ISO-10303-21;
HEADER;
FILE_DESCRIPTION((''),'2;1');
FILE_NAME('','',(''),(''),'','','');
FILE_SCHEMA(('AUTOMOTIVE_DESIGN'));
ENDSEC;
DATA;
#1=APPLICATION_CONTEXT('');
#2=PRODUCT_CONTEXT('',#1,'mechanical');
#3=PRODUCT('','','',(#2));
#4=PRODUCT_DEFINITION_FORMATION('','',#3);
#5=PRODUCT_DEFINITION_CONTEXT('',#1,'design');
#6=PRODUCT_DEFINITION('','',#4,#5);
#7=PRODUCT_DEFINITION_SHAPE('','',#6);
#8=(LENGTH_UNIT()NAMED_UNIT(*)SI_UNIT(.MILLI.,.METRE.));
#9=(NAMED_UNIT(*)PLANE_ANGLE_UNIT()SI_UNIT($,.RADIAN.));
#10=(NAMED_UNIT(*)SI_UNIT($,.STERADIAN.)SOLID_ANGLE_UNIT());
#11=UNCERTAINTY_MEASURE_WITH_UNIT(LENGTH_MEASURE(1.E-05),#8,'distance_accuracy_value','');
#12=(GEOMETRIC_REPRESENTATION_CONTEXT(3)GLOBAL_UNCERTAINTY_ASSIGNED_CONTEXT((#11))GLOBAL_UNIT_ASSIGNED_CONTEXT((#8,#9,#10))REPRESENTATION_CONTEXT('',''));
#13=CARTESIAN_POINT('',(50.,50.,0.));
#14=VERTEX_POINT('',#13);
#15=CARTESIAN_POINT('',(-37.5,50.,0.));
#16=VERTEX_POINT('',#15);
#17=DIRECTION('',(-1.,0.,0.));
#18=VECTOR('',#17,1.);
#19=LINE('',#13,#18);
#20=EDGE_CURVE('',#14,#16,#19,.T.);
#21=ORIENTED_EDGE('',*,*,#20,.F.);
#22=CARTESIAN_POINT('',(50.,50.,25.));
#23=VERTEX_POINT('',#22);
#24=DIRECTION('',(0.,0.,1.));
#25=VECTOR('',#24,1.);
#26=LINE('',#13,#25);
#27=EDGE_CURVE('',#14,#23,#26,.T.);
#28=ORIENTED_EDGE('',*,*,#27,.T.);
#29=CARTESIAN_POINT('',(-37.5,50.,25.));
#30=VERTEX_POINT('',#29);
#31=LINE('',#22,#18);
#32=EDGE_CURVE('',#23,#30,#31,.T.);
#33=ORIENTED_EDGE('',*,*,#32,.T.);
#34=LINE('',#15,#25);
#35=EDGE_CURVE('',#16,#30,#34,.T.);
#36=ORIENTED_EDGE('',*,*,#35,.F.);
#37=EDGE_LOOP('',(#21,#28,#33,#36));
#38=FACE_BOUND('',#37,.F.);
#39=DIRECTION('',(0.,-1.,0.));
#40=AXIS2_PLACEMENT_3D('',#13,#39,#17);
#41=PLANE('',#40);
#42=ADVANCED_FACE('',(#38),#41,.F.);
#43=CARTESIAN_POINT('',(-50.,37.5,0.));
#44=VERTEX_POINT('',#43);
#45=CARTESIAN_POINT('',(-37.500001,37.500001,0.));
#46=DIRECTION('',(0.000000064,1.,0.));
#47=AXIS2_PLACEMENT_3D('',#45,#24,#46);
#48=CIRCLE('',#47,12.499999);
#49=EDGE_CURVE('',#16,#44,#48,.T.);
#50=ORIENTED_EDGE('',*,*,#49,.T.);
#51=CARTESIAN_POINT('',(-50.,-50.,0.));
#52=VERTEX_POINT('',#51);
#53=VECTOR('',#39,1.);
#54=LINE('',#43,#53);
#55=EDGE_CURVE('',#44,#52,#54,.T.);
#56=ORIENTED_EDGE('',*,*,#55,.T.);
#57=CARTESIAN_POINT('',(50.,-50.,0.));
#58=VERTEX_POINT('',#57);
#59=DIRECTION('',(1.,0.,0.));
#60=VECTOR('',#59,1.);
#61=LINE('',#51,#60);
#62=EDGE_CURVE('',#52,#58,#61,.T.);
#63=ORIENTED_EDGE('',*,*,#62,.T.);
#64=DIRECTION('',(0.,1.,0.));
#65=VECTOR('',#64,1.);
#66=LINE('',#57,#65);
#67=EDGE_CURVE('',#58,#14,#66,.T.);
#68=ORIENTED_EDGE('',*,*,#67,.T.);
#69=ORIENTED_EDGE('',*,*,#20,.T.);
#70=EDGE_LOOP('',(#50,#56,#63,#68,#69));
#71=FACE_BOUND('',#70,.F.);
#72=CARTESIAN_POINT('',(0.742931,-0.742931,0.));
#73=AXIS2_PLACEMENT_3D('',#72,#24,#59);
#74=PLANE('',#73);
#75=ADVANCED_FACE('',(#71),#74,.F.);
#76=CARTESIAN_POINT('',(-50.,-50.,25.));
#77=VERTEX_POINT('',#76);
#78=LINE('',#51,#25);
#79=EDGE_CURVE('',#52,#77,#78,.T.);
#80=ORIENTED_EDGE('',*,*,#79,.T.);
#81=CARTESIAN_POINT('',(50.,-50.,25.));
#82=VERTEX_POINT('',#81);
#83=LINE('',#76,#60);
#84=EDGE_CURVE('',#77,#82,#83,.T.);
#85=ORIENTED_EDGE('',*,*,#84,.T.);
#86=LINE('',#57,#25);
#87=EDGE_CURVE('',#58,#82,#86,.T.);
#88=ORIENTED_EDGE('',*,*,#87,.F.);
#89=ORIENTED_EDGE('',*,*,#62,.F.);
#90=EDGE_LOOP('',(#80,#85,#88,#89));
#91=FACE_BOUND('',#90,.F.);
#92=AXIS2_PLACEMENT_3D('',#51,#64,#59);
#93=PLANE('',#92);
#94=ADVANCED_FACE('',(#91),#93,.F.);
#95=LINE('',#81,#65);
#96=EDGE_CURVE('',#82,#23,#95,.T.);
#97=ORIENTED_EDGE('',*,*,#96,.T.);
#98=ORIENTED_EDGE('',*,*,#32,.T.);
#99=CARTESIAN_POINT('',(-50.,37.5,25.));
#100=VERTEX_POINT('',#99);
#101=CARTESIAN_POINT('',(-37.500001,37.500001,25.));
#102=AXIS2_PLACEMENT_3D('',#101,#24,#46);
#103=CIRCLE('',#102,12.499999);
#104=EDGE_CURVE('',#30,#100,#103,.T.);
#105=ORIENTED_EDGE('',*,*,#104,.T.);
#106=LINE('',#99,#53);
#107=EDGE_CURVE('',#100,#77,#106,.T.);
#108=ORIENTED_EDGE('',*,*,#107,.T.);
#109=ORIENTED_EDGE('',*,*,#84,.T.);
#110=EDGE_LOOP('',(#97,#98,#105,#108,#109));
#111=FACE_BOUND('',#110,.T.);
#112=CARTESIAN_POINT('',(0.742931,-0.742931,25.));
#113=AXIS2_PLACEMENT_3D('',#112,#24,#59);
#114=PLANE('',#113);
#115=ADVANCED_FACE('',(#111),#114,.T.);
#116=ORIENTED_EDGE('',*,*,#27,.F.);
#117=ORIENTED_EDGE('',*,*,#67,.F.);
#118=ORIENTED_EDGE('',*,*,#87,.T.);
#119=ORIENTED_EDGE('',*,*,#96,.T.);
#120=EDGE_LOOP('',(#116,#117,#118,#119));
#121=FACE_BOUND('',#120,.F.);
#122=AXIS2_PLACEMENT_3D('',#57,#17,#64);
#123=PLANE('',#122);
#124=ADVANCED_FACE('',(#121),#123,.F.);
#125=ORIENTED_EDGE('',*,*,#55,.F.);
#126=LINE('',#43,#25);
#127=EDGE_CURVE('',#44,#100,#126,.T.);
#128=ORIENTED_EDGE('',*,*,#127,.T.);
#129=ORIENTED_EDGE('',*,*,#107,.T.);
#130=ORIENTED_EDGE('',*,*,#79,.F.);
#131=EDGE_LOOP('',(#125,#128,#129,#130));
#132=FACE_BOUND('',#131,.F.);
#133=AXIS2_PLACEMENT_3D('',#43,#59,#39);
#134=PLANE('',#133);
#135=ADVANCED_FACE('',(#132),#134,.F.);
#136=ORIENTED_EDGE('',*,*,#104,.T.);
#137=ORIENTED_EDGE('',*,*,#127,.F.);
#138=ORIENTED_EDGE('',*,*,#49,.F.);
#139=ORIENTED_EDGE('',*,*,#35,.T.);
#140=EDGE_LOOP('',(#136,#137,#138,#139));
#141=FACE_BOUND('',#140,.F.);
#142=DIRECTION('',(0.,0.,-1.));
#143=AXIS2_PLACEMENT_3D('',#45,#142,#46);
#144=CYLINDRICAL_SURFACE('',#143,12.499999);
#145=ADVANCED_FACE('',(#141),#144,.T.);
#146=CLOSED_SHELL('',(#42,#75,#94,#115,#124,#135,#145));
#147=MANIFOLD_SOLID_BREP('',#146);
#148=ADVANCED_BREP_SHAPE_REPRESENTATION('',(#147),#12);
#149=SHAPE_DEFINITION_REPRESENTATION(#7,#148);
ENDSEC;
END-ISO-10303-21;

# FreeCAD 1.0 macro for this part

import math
import FreeCAD as App
import Part
import Sketcher
from FreeCAD import Vector

doc = App.newDocument("Part")
params = doc.addObject("Spreadsheet::Sheet", "Params")
for row, (alias, value) in enumerate([
    ("sketch1_radius", "12.499999 mm"),
    ("sketch1_width", "100 mm"),
    ("pad1_length", "25 mm"),
], start=1):
    params.set(f"A{row}", alias)
    params.set(f"B{row}", "=" + value)
    params.setAlias(f"B{row}", alias)

body = doc.addObject("PartDesign::Body", "Body")

# Sketch on XY plane
sketch1 = body.newObject("Sketcher::SketchObject", "Sketch")
sketch1.AttachmentSupport = (doc.getObject("XY_Plane"), [""])
sketch1.MapMode = "FlatFace"
sketch1.addGeometry([
    Part.LineSegment(Vector(50, 50, 0), Vector(-38, 50, 0)),  # 0
    Part.ArcOfCircle(Part.Circle(Vector(-38, 38, 0), Vector(0, 0, 1), 12), math.radians(90), math.radians(180)),  # 1
    Part.LineSegment(Vector(-50, 38, 0), Vector(-50, -50, 0)),  # 2
    Part.LineSegment(Vector(-50, -50, 0), Vector(50, -50, 0)),  # 3
    Part.LineSegment(Vector(50, -50, 0), Vector(50, 50, 0)),  # 4
], False)
sketch1.addConstraint([
    Sketcher.Constraint("Tangent", 0, 2, 1, 1),
    Sketcher.Constraint("Tangent", 1, 2, 2, 1),
    Sketcher.Constraint("Coincident", 2, 2, 3, 1),
    Sketcher.Constraint("Coincident", 3, 2, 4, 1),
    Sketcher.Constraint("Coincident", 4, 2, 0, 1),
    Sketcher.Constraint("Horizontal", 0),
    Sketcher.Constraint("Vertical", 2),
    Sketcher.Constraint("Horizontal", 3),
    Sketcher.Constraint("Vertical", 4),
    Sketcher.Constraint("Symmetric", 2, 2, 4, 2, -1, 1),
    Sketcher.Constraint("Equal", 0, 2),
    Sketcher.Constraint("Radius", 1, 12.499999),
    Sketcher.Constraint("DistanceX", 3, 1, 3, 2, 100.0),
])
sketch1.setExpression("Constraints[11]", "Params.sketch1_radius")
sketch1.setExpression("Constraints[12]", "Params.sketch1_width")
pad1 = body.newObject("PartDesign::Pad", "Pad")
pad1.Profile = sketch1
pad1.setExpression("Length", "Params.pad1_length")

doc.recompute()
